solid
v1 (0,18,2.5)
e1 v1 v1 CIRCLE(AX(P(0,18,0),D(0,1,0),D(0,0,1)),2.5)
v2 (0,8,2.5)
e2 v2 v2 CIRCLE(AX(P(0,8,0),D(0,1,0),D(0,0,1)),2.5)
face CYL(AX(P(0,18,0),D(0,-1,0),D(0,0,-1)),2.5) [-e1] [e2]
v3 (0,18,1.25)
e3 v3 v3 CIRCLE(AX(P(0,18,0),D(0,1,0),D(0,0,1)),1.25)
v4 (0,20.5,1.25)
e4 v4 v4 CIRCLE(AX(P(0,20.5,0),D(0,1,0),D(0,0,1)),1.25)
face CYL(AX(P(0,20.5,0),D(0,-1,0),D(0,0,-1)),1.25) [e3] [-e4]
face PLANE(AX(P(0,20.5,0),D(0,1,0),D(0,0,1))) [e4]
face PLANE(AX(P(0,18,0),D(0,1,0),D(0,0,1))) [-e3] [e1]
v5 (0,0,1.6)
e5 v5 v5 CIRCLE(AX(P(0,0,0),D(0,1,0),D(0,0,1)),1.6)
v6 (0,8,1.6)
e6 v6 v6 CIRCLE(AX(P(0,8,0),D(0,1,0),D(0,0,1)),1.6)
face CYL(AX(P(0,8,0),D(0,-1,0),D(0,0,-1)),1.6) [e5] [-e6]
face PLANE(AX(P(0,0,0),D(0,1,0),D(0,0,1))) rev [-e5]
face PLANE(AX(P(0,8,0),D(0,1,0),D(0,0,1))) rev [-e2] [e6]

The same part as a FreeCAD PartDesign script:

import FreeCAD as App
import Part
import Sketcher

V = App.Vector

doc = App.newDocument("Part")
params = doc.addObject("Spreadsheet::Sheet", "Params")
for row, (alias, value) in enumerate([
    ("sketch1_diameter", "3.2 mm"),
    ("pad1_length", "8 mm"),
    ("sketch2_diameter", "5 mm"),
    ("pad2_length", "10 mm"),
    ("sketch3_diameter", "2.5 mm"),
    ("pad3_length", "2.5 mm"),
], start=1):
    params.set(f"A{row}", alias)
    params.set(f"B{row}", "=" + value)
    params.setAlias(f"B{row}", alias)

body = doc.addObject("PartDesign::Body", "Body")

sketch1 = doc.addObject("Sketcher::SketchObject", "Sketch")
body.addObject(sketch1)
sketch1.AttachmentSupport = (doc.XZ_Plane, [""])
sketch1.MapMode = "FlatFace"
sketch1.addGeometry(Part.Circle(V(0, 0, 0), V(0, 0, 1), 1.6), False)
sketch1.addConstraint(Sketcher.Constraint("Coincident", 0, 3, -1, 1))
sketch1.addConstraint(Sketcher.Constraint("Diameter", 0, 3.2))
sketch1.setExpression("Constraints[1]", "Params.sketch1_diameter")
pad1 = doc.addObject("PartDesign::Pad", "Pad")
body.addObject(pad1)
pad1.Profile = sketch1
pad1.setExpression("Length", "Params.pad1_length")
pad1.Reversed = True

sketch2 = doc.addObject("Sketcher::SketchObject", "Sketch001")
body.addObject(sketch2)
sketch2.AttachmentSupport = (doc.XZ_Plane, [""])
sketch2.MapMode = "FlatFace"
sketch2.AttachmentOffset = App.Placement(V(0, 0, -8), App.Rotation())
sketch2.addGeometry(Part.Circle(V(0, 0, 0), V(0, 0, 1), 2.5), False)
sketch2.addConstraint(Sketcher.Constraint("Coincident", 0, 3, -1, 1))
sketch2.addConstraint(Sketcher.Constraint("Diameter", 0, 5.0))
sketch2.setExpression("Constraints[1]", "Params.sketch2_diameter")
pad2 = doc.addObject("PartDesign::Pad", "Pad001")
body.addObject(pad2)
pad2.Profile = sketch2
pad2.setExpression("Length", "Params.pad2_length")
pad2.Reversed = True

sketch3 = doc.addObject("Sketcher::SketchObject", "Sketch002")
body.addObject(sketch3)
sketch3.AttachmentSupport = (doc.XZ_Plane, [""])
sketch3.MapMode = "FlatFace"
sketch3.AttachmentOffset = App.Placement(V(0, 0, -18), App.Rotation())
sketch3.addGeometry(Part.Circle(V(0, 0, 0), V(0, 0, 1), 1.2), False)
sketch3.addConstraint(Sketcher.Constraint("Coincident", 0, 3, -1, 1))
sketch3.addConstraint(Sketcher.Constraint("Diameter", 0, 2.5))
sketch3.setExpression("Constraints[1]", "Params.sketch3_diameter")
pad3 = doc.addObject("PartDesign::Pad", "Pad002")
body.addObject(pad3)
pad3.Profile = sketch3
pad3.setExpression("Length", "Params.pad3_length")
pad3.Reversed = True

doc.recompute()
